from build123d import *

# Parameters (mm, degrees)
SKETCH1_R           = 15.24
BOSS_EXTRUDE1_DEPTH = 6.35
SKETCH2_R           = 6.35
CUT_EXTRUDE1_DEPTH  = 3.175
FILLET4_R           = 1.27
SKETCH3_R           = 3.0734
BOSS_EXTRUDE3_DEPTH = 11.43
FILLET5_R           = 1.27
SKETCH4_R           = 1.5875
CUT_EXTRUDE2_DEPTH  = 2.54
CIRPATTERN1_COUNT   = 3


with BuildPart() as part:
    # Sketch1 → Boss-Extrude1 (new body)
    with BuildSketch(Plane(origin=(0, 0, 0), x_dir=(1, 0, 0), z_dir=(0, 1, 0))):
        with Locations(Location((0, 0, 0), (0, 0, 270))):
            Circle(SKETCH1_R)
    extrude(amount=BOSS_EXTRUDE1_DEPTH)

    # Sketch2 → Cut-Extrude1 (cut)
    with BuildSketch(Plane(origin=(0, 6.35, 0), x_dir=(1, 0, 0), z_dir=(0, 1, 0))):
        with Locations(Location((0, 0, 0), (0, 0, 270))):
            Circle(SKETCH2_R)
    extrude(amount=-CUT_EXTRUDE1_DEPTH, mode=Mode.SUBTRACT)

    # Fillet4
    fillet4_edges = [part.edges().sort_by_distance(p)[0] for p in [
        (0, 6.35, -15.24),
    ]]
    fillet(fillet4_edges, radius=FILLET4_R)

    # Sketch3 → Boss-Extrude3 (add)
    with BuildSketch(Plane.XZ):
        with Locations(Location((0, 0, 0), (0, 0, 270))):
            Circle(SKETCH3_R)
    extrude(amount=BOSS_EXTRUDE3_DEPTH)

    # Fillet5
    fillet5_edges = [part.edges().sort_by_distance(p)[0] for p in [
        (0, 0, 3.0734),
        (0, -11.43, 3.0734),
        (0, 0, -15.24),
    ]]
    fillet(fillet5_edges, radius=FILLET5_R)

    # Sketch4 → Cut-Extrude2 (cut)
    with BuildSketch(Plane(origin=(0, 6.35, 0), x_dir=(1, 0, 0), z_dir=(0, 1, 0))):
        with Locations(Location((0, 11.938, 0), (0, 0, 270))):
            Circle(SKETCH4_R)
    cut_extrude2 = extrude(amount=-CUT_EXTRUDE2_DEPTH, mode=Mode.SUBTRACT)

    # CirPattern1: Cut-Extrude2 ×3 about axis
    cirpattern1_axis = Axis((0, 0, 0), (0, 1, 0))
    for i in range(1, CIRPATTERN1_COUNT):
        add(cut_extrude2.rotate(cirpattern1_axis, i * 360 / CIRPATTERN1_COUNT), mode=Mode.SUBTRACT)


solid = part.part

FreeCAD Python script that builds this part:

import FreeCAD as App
import Part
import Sketcher

V = App.Vector
Q = App.Units.Quantity


def edges_at(feature, points):
    """Names of the edges that pass closest to the given points."""
    edges = feature.Shape.Edges
    near = lambda p: min(range(len(edges)), key=lambda i: edges[i].distToShape(Part.Vertex(*p))[0])
    return sorted({f"Edge{near(p) + 1}" for p in points})

doc = App.newDocument("Part")
body = doc.addObject("PartDesign::Body", "Body")

# Sketch on XZ plane
sketch1 = body.newObject("Sketcher::SketchObject", "Sketch")
sketch1.AttachmentSupport = (doc.getObject("XZ_Plane"), [""])
sketch1.MapMode = "FlatFace"
sketch1.addGeometry(Part.Circle(V(0, 0, 0), V(0, 0, 1), 15), False)
sketch1.addConstraint([
    Sketcher.Constraint("Coincident", 0, 3, -1, 1),
    Sketcher.Constraint("Diameter", 0, Q("1.2 in")),
])
pad1 = body.newObject("PartDesign::Pad", "Pad")
pad1.Profile = sketch1
pad1.Length = Q("0.25 in")
pad1.Reversed = True

# Sketch on XZ plane
sketch2 = body.newObject("Sketcher::SketchObject", "Sketch001")
sketch2.AttachmentSupport = (doc.getObject("XZ_Plane"), [""])
sketch2.MapMode = "FlatFace"
sketch2.AttachmentOffset = App.Placement(V(0, 0, -0.25 * 25.4), App.Rotation())
sketch2.addGeometry(Part.Circle(V(0, 0, 0), V(0, 0, 1), 6), False)
sketch2.addConstraint([
    Sketcher.Constraint("Coincident", 0, 3, -1, 1),
    Sketcher.Constraint("Diameter", 0, Q("0.5 in")),
])
pocket1 = body.newObject("PartDesign::Pocket", "Pocket")
pocket1.Profile = sketch2
pocket1.Length = Q("0.125 in")
pocket1.Reversed = True
doc.recompute()

fillet = body.newObject("PartDesign::Fillet", "Fillet")
fillet.Base = (pocket1, edges_at(pocket1, [(0, 6.35, -15.24)]))
fillet.Radius = Q("0.05 in")

# Sketch on XZ plane
sketch3 = body.newObject("Sketcher::SketchObject", "Sketch002")
sketch3.AttachmentSupport = (doc.getObject("XZ_Plane"), [""])
sketch3.MapMode = "FlatFace"
sketch3.addGeometry(Part.Circle(V(0, 0, 0), V(0, 0, 1), 3.1), False)
sketch3.addConstraint([
    Sketcher.Constraint("Coincident", 0, 3, -1, 1),
    Sketcher.Constraint("Diameter", 0, Q("0.242 in")),
])
pad2 = body.newObject("PartDesign::Pad", "Pad001")
pad2.Profile = sketch3
pad2.Length = Q("0.45 in")
doc.recompute()

fillet2 = body.newObject("PartDesign::Fillet", "Fillet001")
fillet2.Base = (pad2, edges_at(pad2, [(0, 0, 3.073), (0, -11.43, 3.073), (0, 0, -15.24)]))
fillet2.Radius = Q("0.05 in")

# Sketch on XZ plane
sketch4 = body.newObject("Sketcher::SketchObject", "Sketch003")
sketch4.AttachmentSupport = (doc.getObject("XZ_Plane"), [""])
sketch4.MapMode = "FlatFace"
sketch4.AttachmentOffset = App.Placement(V(0, 0, -0.25 * 25.4), App.Rotation())
sketch4.addGeometry(Part.Circle(V(0, -11.9, 0), V(0, 0, 1), 1.6), False)
sketch4.addConstraint([
    Sketcher.Constraint("PointOnObject", 0, 3, -2),
    Sketcher.Constraint("Diameter", 0, Q("0.125 in")),
    Sketcher.Constraint("DistanceY", 0, 3, -1, 1, Q("0.47 in")),
])
pocket2 = body.newObject("PartDesign::Pocket", "Pocket001")
pocket2.Profile = sketch4
pocket2.Length = Q("0.1 in")
pocket2.Reversed = True
doc.recompute()

polarpattern = body.newObject("PartDesign::PolarPattern", "PolarPattern")
polarpattern.Originals = [pocket2]
polarpattern.Axis = (doc.getObject("Y_Axis"), [""])
polarpattern.Angle = 360
polarpattern.Occurrences = 3
body.Tip = polarpattern

doc.recompute()
